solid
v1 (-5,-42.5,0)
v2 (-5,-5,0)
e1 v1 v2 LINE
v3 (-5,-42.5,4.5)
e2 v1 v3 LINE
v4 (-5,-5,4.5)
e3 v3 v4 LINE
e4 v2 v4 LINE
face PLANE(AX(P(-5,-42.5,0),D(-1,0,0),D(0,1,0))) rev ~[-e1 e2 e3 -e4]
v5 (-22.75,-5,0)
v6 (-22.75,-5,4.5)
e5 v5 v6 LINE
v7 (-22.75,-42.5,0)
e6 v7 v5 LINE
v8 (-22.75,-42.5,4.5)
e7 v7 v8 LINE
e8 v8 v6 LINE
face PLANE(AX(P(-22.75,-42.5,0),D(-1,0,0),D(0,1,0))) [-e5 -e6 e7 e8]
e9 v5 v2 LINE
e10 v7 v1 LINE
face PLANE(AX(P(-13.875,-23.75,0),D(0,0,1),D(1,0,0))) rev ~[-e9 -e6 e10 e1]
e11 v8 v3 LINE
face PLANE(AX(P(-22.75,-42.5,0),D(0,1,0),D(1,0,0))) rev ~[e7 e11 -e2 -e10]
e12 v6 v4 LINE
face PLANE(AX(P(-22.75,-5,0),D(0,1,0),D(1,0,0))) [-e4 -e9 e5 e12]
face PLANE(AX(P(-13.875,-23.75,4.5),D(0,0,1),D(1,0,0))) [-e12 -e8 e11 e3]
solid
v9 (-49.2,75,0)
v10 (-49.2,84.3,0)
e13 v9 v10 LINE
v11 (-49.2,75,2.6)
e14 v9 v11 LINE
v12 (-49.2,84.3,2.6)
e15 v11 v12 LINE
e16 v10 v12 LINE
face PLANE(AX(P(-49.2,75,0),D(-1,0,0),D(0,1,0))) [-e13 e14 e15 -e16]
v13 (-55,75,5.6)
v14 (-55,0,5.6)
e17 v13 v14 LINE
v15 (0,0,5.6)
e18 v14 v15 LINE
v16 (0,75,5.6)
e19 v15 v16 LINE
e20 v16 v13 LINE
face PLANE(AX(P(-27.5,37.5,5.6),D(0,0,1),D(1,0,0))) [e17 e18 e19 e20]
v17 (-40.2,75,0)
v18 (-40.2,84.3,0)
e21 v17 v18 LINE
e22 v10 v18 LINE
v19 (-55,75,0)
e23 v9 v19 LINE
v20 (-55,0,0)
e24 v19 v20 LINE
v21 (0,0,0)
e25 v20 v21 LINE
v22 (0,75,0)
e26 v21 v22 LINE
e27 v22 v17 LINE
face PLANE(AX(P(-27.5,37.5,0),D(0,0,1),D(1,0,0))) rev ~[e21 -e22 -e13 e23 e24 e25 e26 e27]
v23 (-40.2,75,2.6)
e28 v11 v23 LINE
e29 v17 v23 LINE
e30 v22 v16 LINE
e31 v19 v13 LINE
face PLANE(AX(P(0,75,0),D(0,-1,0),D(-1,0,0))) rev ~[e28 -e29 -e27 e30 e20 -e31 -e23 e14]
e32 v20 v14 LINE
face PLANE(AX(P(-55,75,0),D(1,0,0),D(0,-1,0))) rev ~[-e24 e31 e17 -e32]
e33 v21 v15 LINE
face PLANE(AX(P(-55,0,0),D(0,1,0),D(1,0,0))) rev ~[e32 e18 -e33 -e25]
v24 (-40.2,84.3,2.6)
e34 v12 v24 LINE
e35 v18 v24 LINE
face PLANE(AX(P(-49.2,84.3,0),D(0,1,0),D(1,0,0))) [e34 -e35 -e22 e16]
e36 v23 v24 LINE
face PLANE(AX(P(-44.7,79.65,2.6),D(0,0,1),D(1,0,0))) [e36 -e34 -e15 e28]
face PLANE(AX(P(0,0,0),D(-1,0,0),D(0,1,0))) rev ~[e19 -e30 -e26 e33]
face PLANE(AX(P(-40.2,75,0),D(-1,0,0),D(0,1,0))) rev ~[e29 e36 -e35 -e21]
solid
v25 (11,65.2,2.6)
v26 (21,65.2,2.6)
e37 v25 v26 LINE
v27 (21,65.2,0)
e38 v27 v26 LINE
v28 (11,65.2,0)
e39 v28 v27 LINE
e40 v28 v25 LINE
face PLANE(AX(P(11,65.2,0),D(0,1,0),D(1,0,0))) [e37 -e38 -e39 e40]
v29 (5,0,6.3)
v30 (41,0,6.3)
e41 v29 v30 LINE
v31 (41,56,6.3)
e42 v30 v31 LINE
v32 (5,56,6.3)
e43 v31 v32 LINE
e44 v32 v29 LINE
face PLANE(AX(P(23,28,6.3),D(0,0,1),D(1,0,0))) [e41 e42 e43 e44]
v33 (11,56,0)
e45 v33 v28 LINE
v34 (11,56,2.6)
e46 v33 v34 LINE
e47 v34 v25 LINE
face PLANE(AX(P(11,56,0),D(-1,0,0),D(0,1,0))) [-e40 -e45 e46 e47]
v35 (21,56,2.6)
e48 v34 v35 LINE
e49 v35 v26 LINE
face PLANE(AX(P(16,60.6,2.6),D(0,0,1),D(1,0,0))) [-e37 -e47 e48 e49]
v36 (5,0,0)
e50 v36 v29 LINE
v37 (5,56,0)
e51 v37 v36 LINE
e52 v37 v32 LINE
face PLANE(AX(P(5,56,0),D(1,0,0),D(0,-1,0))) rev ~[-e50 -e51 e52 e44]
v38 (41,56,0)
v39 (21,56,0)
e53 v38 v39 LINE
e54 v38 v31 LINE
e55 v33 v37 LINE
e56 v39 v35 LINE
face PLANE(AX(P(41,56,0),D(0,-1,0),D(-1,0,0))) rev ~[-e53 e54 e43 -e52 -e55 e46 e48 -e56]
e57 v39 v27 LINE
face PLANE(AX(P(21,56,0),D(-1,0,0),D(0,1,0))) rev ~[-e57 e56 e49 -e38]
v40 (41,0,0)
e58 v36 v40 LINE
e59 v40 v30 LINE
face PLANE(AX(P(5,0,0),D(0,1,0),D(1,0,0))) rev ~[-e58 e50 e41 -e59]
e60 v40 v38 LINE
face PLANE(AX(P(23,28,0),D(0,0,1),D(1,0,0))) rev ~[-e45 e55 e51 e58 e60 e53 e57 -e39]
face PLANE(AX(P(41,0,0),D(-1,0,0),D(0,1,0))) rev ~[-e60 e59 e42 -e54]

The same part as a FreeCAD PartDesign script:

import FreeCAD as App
import Part
import Sketcher


def add_polygon(sketch, points):
    """Adds a closed chain of lines whose ends are joined by coincident constraints."""
    first, n = sketch.GeometryCount, len(points)
    for a, b in zip(points, points[1:] + points[:1]):
        sketch.addGeometry(Part.LineSegment(App.Vector(*a, 0), App.Vector(*b, 0)), False)
    for i in range(n):
        sketch.addConstraint(Sketcher.Constraint("Coincident", first + i, 2, first + (i + 1) % n, 1))

doc = App.newDocument("Part")
body = doc.addObject("PartDesign::Body", "Body")

# Sketch on XY plane
sketch1 = doc.addObject("Sketcher::SketchObject", "Sketch")
body.addObject(sketch1)
sketch1.AttachmentSupport = (doc.XY_Plane, [""])
sketch1.MapMode = "FlatFace"
add_polygon(sketch1, [(-55, 0), (0, 0), (0, 75), (-55, 75)])  # lines 0-3
sketch1.addConstraint([
    Sketcher.Constraint("Horizontal", 0),
    Sketcher.Constraint("Vertical", 1),
    Sketcher.Constraint("Horizontal", 2),
    Sketcher.Constraint("Vertical", 3),
    Sketcher.Constraint("Coincident", 0, 2, -1, 1),
    Sketcher.Constraint("DistanceX", 0, 1, 0, 2, 55.0),
    Sketcher.Constraint("DistanceY", 1, 1, 1, 2, 75.0),
])
pad1 = doc.addObject("PartDesign::Pad", "Pad")
body.addObject(pad1)
pad1.Profile = sketch1
pad1.Length = 5.6

# Sketch on XY plane
sketch2 = doc.addObject("Sketcher::SketchObject", "Sketch001")
body.addObject(sketch2)
sketch2.AttachmentSupport = (doc.XY_Plane, [""])
sketch2.MapMode = "FlatFace"
add_polygon(sketch2, [(-49.2, 84.3), (-49.2, 75), (-40.2, 75), (-40.2, 84.3)])  # lines 0-3
sketch2.addConstraint([
    Sketcher.Constraint("Vertical", 0),
    Sketcher.Constraint("Horizontal", 1),
    Sketcher.Constraint("Vertical", 2),
    Sketcher.Constraint("Horizontal", 3),
    Sketcher.Constraint("DistanceX", 1, 1, 1, 2, 9.0),
    Sketcher.Constraint("DistanceY", 0, 2, 0, 1, 9.3),
    Sketcher.Constraint("DistanceY", -1, 1, 0, 2, 75.0),
    Sketcher.Constraint("DistanceX", 0, 2, -1, 1, 49.2),
])
pad2 = doc.addObject("PartDesign::Pad", "Pad001")
body.addObject(pad2)
pad2.Profile = sketch2
pad2.Length = 2.6
body2 = doc.addObject("PartDesign::Body", "Body001")

# Sketch on XY plane
sketch3 = doc.addObject("Sketcher::SketchObject", "Sketch002")
body2.addObject(sketch3)
sketch3.AttachmentSupport = (doc.getObject("XY_Plane001"), [""])
sketch3.MapMode = "FlatFace"
add_polygon(sketch3, [(5, 56), (5, 0), (41, 0), (41, 56)])  # lines 0-3
sketch3.addConstraint([
    Sketcher.Constraint("Vertical", 0),
    Sketcher.Constraint("Horizontal", 1),
    Sketcher.Constraint("Vertical", 2),
    Sketcher.Constraint("Horizontal", 3),
    Sketcher.Constraint("PointOnObject", 0, 2, -1),
    Sketcher.Constraint("DistanceX", 1, 1, 1, 2, 36.0),
    Sketcher.Constraint("DistanceY", 0, 2, 0, 1, 56.0),
    Sketcher.Constraint("DistanceX", -1, 1, 0, 2, 5.0),
])
pad3 = doc.addObject("PartDesign::Pad", "Pad002")
body2.addObject(pad3)
pad3.Profile = sketch3
pad3.Length = 6.3

# Sketch on XY plane
sketch4 = doc.addObject("Sketcher::SketchObject", "Sketch003")
body2.addObject(sketch4)
sketch4.AttachmentSupport = (doc.getObject("XY_Plane001"), [""])
sketch4.MapMode = "FlatFace"
add_polygon(sketch4, [(11, 65.2), (11, 56), (21, 56), (21, 65.2)])  # lines 0-3
sketch4.addConstraint([
    Sketcher.Constraint("Vertical", 0),
    Sketcher.Constraint("Horizontal", 1),
    Sketcher.Constraint("Vertical", 2),
    Sketcher.Constraint("Horizontal", 3),
    Sketcher.Constraint("DistanceX", 1, 1, 1, 2, 10.0),
    Sketcher.Constraint("DistanceY", 0, 2, 0, 1, 9.2),
    Sketcher.Constraint("DistanceX", -1, 1, 0, 2, 11.0),
    Sketcher.Constraint("DistanceY", -1, 1, 0, 2, 56.0),
])
pad4 = doc.addObject("PartDesign::Pad", "Pad003")
body2.addObject(pad4)
pad4.Profile = sketch4
pad4.Length = 2.6
body3 = doc.addObject("PartDesign::Body", "Body002")

# Sketch on XY plane
sketch5 = doc.addObject("Sketcher::SketchObject", "Sketch004")
body3.addObject(sketch5)
sketch5.AttachmentSupport = (doc.getObject("XY_Plane002"), [""])
sketch5.MapMode = "FlatFace"
add_polygon(sketch5, [(-22.75, -5), (-22.75, -42.5), (-5, -42.5), (-5, -5)])  # lines 0-3
sketch5.addConstraint([
    Sketcher.Constraint("Vertical", 0),
    Sketcher.Constraint("Horizontal", 1),
    Sketcher.Constraint("Vertical", 2),
    Sketcher.Constraint("Horizontal", 3),
    Sketcher.Constraint("DistanceY", 0, 2, 0, 1, 37.5),
    Sketcher.Constraint("DistanceX", 1, 2, -1, 1, 5.0),
    Sketcher.Constraint("DistanceY", 2, 2, -1, 1, 5.0),
    Sketcher.Constraint("DistanceX", 1, 1, 1, 2, 17.75),
])
pad5 = doc.addObject("PartDesign::Pad", "Pad004")
body3.addObject(pad5)
pad5.Profile = sketch5
pad5.Length = 4.5

doc.recompute()
